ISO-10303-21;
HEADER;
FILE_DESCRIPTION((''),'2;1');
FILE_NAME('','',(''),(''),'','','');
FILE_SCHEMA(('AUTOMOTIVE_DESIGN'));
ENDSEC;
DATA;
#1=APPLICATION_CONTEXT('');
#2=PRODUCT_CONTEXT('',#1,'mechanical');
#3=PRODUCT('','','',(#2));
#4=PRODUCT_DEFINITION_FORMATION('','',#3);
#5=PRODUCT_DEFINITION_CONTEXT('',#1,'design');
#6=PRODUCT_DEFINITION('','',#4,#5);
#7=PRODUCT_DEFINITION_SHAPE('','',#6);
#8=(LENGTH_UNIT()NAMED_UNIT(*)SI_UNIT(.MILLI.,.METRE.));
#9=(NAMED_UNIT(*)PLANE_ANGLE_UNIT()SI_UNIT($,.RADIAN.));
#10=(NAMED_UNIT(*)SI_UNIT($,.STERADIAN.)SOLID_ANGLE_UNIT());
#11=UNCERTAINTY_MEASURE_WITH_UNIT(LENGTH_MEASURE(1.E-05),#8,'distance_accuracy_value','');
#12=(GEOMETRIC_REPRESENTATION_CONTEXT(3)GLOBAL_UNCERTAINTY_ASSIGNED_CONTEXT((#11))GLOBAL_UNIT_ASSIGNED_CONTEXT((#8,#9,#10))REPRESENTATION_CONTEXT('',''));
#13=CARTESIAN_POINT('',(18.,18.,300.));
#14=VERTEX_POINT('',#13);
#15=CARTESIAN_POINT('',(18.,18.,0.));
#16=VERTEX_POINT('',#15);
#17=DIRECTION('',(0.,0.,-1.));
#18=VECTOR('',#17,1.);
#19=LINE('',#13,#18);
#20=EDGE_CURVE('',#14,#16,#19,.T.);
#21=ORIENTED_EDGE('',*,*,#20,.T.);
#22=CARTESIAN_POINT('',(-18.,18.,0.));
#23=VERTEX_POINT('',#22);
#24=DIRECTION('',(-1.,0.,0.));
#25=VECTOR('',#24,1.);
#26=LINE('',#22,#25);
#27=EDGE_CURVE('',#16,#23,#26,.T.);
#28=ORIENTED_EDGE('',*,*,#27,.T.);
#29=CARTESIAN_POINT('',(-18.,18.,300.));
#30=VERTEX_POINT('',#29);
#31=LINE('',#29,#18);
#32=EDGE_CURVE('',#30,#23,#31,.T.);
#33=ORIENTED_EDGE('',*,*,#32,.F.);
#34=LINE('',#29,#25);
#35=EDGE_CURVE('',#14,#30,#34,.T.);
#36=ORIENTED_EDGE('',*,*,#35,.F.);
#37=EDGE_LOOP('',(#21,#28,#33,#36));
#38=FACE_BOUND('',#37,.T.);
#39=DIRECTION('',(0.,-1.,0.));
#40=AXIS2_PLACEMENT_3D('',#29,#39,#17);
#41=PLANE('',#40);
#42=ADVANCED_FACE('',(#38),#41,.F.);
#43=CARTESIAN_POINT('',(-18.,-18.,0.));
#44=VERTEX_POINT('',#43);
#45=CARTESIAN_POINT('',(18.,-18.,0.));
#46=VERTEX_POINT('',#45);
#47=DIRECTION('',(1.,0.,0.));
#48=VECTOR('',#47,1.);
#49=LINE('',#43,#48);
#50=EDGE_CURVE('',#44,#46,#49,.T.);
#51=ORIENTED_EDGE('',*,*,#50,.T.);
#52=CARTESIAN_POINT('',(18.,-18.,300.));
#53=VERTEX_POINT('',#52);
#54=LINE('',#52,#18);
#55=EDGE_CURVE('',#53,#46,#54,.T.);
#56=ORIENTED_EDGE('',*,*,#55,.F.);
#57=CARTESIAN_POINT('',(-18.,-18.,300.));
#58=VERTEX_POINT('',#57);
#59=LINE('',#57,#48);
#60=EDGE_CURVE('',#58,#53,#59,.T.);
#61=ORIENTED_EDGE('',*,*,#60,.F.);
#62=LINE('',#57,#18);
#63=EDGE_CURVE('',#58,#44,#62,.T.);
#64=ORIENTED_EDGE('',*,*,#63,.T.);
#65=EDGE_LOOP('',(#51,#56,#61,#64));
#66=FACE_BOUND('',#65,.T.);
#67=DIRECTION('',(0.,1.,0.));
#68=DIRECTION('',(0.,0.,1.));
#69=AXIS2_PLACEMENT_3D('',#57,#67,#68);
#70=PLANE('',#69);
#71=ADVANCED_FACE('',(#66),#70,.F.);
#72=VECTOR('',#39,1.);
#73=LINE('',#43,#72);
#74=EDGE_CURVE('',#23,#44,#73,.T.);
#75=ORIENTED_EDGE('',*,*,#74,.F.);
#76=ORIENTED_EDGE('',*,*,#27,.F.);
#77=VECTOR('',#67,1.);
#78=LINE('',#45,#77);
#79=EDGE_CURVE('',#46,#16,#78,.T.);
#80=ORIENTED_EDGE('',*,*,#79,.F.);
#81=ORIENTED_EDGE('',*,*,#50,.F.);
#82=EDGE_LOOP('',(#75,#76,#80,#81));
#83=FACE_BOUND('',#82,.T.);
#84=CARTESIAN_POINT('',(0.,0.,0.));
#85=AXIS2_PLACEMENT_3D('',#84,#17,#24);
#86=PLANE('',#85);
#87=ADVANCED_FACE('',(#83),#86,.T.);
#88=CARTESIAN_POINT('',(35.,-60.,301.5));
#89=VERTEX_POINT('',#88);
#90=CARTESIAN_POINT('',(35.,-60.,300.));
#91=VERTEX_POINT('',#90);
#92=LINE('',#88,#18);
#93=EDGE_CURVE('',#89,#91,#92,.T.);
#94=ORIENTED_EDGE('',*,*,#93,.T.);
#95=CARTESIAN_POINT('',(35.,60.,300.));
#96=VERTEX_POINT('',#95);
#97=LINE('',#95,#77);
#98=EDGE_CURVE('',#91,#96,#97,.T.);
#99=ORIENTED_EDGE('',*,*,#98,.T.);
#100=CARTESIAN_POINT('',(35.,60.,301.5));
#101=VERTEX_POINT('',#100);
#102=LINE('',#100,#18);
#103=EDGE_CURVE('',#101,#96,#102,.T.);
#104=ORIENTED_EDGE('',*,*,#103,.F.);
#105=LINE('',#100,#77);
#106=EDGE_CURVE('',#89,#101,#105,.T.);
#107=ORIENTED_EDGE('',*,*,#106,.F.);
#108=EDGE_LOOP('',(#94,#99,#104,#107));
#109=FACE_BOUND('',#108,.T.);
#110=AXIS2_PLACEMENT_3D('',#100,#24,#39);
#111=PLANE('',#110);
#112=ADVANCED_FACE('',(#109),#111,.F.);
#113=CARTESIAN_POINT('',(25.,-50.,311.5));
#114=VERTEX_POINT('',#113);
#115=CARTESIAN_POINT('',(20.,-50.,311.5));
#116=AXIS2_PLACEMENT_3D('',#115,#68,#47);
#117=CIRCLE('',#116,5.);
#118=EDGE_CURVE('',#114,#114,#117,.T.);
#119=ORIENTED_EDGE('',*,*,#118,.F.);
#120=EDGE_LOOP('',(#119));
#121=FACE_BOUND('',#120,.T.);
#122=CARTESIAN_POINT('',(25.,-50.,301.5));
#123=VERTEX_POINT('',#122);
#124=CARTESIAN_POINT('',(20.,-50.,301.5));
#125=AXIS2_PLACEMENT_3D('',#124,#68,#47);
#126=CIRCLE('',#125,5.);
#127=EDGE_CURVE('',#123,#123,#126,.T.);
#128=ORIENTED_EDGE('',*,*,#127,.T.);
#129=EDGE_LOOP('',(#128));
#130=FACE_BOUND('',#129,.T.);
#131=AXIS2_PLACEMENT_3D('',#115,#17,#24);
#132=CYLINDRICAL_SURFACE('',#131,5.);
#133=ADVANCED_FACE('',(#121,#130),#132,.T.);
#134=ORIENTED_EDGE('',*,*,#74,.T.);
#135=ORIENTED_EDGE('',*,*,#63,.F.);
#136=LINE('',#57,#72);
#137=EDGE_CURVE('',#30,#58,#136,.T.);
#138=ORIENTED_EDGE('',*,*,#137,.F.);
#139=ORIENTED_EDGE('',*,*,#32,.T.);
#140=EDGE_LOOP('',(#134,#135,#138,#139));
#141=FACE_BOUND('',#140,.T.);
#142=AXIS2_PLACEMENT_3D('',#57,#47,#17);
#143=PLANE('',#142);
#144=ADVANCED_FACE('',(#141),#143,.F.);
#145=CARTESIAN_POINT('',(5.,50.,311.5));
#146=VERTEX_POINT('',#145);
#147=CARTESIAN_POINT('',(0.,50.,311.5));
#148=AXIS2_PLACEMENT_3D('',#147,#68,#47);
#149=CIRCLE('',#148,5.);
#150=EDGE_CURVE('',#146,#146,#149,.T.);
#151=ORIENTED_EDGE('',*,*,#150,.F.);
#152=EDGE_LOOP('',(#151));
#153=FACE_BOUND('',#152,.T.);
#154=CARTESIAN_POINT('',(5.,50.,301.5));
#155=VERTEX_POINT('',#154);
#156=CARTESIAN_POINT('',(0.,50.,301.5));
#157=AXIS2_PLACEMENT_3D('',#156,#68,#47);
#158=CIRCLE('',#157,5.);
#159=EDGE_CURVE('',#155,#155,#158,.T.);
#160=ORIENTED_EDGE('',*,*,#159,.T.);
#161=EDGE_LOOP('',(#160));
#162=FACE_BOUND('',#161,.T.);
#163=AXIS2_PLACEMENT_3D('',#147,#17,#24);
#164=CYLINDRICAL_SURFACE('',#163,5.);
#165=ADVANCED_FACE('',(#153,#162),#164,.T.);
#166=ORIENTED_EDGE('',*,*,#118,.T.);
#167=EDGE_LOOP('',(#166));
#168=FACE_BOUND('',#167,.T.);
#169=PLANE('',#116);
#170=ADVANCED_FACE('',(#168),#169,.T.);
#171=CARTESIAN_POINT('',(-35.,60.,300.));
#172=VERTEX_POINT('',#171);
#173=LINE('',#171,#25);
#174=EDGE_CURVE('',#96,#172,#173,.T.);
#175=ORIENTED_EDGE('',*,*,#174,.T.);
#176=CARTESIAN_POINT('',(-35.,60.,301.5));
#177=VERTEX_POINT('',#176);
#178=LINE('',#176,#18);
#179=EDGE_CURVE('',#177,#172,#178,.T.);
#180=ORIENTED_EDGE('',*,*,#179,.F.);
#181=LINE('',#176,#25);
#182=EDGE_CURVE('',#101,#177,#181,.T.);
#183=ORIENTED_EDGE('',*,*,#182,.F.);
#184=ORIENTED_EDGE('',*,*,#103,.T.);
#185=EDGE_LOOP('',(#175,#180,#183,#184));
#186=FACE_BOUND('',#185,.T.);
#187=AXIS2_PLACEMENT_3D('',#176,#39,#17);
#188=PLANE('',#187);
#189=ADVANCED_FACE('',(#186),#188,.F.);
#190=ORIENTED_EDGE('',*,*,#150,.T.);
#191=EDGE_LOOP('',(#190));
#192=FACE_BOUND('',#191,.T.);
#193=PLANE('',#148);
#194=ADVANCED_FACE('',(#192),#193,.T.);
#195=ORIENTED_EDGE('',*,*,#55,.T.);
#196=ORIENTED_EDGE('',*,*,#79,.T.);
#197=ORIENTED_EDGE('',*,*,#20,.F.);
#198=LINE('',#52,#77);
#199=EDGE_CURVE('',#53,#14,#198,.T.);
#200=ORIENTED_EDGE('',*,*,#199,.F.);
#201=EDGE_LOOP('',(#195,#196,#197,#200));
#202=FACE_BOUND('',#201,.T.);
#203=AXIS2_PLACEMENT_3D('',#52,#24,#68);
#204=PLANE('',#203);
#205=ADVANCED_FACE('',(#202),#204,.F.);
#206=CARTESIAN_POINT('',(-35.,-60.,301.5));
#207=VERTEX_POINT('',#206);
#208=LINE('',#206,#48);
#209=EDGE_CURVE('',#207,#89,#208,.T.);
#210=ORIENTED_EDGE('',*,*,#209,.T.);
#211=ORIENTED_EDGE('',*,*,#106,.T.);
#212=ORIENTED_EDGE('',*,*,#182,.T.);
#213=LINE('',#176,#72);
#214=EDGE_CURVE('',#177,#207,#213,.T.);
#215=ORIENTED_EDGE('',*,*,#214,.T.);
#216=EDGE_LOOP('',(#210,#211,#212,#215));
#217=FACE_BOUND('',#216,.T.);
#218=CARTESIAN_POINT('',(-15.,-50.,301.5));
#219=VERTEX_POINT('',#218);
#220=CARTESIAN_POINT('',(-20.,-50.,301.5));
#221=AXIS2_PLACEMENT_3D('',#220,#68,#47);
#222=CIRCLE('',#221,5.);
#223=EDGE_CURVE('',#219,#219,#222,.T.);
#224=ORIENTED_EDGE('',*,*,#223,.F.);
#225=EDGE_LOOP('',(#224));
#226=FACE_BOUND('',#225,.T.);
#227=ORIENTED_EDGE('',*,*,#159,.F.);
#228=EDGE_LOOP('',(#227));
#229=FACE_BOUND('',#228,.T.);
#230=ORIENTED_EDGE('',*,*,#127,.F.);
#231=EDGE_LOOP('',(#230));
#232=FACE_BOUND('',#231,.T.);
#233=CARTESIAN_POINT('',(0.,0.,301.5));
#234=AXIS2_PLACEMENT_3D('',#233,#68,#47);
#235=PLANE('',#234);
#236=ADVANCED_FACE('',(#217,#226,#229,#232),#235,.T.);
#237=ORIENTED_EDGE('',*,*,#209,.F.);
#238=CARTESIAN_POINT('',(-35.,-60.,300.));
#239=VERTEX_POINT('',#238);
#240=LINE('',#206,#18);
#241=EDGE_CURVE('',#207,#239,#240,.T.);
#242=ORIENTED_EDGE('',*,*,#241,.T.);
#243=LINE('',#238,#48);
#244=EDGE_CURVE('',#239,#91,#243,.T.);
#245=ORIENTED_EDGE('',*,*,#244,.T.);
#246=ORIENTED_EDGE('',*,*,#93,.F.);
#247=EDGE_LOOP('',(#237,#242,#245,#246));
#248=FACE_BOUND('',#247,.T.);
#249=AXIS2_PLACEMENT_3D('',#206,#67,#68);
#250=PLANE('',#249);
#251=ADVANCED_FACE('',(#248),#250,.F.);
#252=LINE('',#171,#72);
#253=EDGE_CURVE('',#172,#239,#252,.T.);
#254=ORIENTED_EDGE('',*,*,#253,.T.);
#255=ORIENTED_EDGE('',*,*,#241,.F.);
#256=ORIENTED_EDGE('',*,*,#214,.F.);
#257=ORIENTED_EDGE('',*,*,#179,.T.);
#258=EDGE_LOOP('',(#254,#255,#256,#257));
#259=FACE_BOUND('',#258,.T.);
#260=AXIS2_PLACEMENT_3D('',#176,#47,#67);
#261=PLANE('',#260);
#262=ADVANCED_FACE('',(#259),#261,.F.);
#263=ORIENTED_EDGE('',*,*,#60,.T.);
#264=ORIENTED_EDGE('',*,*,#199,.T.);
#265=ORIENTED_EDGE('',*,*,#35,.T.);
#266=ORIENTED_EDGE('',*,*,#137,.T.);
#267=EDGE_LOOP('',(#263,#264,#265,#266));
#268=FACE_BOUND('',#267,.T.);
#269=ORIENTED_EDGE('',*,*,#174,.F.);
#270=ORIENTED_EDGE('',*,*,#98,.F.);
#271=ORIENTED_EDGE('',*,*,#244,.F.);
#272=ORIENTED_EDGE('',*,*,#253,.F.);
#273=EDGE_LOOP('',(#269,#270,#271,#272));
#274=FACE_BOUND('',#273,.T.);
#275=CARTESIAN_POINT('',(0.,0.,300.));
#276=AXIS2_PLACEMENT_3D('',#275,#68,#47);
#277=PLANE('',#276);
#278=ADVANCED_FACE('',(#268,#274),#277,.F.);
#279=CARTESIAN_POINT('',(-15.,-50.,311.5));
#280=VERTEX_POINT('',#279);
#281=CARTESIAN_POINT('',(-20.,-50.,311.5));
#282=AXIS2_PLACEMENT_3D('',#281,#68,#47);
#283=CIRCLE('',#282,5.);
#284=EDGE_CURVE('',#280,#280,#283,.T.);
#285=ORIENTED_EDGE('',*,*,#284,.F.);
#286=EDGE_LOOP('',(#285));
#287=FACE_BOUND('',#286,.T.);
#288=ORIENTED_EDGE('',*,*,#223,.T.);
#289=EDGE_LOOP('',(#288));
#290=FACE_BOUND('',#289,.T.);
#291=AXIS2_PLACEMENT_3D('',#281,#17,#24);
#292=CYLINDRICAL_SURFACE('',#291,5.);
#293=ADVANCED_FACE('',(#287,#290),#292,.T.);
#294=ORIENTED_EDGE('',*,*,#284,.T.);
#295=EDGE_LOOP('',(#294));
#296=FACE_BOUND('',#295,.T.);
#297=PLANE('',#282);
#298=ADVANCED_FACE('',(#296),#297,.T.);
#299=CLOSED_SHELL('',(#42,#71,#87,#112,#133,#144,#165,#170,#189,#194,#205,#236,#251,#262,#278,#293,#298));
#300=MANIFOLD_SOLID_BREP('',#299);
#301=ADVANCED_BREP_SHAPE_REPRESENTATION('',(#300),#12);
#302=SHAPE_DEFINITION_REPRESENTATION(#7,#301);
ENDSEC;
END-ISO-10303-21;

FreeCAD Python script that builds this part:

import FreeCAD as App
import Part
import Sketcher

V = App.Vector
Q = App.Units.Quantity


def add_polygon(sketch, points):
    """Adds a closed chain of lines whose ends are joined by coincident constraints."""
    first, n = sketch.GeometryCount, len(points)
    for a, b in zip(points, points[1:] + points[:1]):
        sketch.addGeometry(Part.LineSegment(App.Vector(*a, 0), App.Vector(*b, 0)), False)
    for i in range(n):
        sketch.addConstraint(Sketcher.Constraint("Coincident", first + i, 2, first + (i + 1) % n, 1))

doc = App.newDocument("Part")
body = doc.addObject("PartDesign::Body", "Body")

# Sketch on XY plane
sketch1 = doc.addObject("Sketcher::SketchObject", "Sketch")
body.addObject(sketch1)
sketch1.AttachmentSupport = (doc.XY_Plane, [""])
sketch1.MapMode = "FlatFace"
add_polygon(sketch1, [(-18, 18), (-18, -18), (18, -18), (18, 18)])  # lines 0-3
sketch1.addConstraint(Sketcher.Constraint("Vertical", 0))
sketch1.addConstraint(Sketcher.Constraint("Horizontal", 1))
sketch1.addConstraint(Sketcher.Constraint("Vertical", 2))
sketch1.addConstraint(Sketcher.Constraint("Horizontal", 3))
sketch1.addConstraint(Sketcher.Constraint("Symmetric", 0, 2, 2, 2, -1, 1))
sketch1.addConstraint(Sketcher.Constraint("Equal", 3, 0))
sketch1.addConstraint(Sketcher.Constraint("DistanceX", 1, 1, 1, 2, Q("36 mm")))
pad1 = doc.addObject("PartDesign::Pad", "Pad")
body.addObject(pad1)
pad1.Profile = sketch1
pad1.Length = 300

# Sketch on XY plane
sketch2 = doc.addObject("Sketcher::SketchObject", "Sketch001")
body.addObject(sketch2)
sketch2.AttachmentSupport = (doc.XY_Plane, [""])
sketch2.MapMode = "FlatFace"
sketch2.AttachmentOffset = App.Placement(V(0, 0, 300), App.Rotation())
add_polygon(sketch2, [(-35, 60), (-35, -60), (35, -60), (35, 60)])  # lines 0-3
sketch2.addConstraint(Sketcher.Constraint("Vertical", 0))
sketch2.addConstraint(Sketcher.Constraint("Horizontal", 1))
sketch2.addConstraint(Sketcher.Constraint("Vertical", 2))
sketch2.addConstraint(Sketcher.Constraint("Horizontal", 3))
sketch2.addConstraint(Sketcher.Constraint("Symmetric", 0, 2, 2, 2, -1, 1))
sketch2.addConstraint(Sketcher.Constraint("DistanceX", 1, 1, 1, 2, Q("70 mm")))
sketch2.addConstraint(Sketcher.Constraint("DistanceY", 0, 2, 0, 1, Q("120 mm")))
pad2 = doc.addObject("PartDesign::Pad", "Pad001")
body.addObject(pad2)
pad2.Profile = sketch2
pad2.Length = 1.5

# Sketch on XY plane
sketch3 = doc.addObject("Sketcher::SketchObject", "Sketch002")
body.addObject(sketch3)
sketch3.AttachmentSupport = (doc.XY_Plane, [""])
sketch3.MapMode = "FlatFace"
sketch3.AttachmentOffset = App.Placement(V(0, 0, 301.5), App.Rotation())
sketch3.addGeometry(Part.Circle(V(0, 50, 0), V(0, 0, 1), 5), False)
sketch3.addGeometry(Part.Circle(V(-20, -50, 0), V(0, 0, 1), 5), False)
sketch3.addGeometry(Part.Circle(V(20, -50, 0), V(0, 0, 1), 5), False)
sketch3.addConstraint(Sketcher.Constraint("Equal", 0, 1))
sketch3.addConstraint(Sketcher.Constraint("Equal", 1, 2))
sketch3.addConstraint(Sketcher.Constraint("Symmetric", 1, 3, 2, 3, -2))
sketch3.addConstraint(Sketcher.Constraint("PointOnObject", 0, 3, -2))
sketch3.addConstraint(Sketcher.Constraint("Diameter", 0, Q("10 mm")))
sketch3.addConstraint(Sketcher.Constraint("DistanceY", -1, 1, 0, 3, Q("50 mm")))
sketch3.addConstraint(Sketcher.Constraint("DistanceX", 1, 3, -1, 1, Q("20 mm")))
sketch3.addConstraint(Sketcher.Constraint("DistanceY", 1, 3, -1, 1, Q("50 mm")))
pad3 = doc.addObject("PartDesign::Pad", "Pad002")
body.addObject(pad3)
pad3.Profile = sketch3
pad3.Length = 10

doc.recompute()
